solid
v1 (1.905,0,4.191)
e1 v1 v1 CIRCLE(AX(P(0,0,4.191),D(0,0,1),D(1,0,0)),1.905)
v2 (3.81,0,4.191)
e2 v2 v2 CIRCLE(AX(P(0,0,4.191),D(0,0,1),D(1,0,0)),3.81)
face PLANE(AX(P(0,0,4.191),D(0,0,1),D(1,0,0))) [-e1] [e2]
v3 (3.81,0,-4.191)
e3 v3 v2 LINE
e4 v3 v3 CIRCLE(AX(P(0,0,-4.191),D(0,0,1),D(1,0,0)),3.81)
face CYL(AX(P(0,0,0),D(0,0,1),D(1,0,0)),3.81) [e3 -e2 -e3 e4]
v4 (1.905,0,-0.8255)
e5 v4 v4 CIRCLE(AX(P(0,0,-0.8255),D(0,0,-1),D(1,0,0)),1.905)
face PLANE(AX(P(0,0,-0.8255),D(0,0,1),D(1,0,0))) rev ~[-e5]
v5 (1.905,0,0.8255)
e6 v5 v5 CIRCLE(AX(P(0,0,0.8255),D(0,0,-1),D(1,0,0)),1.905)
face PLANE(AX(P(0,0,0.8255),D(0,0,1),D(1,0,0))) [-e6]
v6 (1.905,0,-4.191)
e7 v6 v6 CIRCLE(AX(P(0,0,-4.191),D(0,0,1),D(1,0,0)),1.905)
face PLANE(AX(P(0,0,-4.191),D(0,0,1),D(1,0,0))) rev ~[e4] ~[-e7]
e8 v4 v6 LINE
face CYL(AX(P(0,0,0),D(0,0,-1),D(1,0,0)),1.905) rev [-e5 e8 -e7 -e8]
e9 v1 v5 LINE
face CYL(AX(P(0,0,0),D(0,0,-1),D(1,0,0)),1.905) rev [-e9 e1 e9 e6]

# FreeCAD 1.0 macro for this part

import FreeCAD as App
import Part
import Sketcher

V = App.Vector
Q = App.Units.Quantity

doc = App.newDocument("Part")
params = doc.addObject("Spreadsheet::Sheet", "Params")
for row, (alias, value) in enumerate([
    ("sketch1_diameter", "0.3 in"),
    ("sketch1_diameter2", "0.15 in"),
    ("pad1_length", "0.33 in"),
    ("sketch2_diameter", "0.152 in"),
    ("pad2_length", "0.065 in"),
], start=1):
    params.set(f"A{row}", alias)
    params.set(f"B{row}", "=" + value)
    params.setAlias(f"B{row}", alias)

body = doc.addObject("PartDesign::Body", "Body")

# Sketch on XY plane
sketch1 = body.newObject("Sketcher::SketchObject", "Sketch")
sketch1.AttachmentSupport = (doc.getObject("XY_Plane"), [""])
sketch1.MapMode = "FlatFace"
sketch1.addGeometry(Part.Circle(V(0, 0, 0), V(0, 0, 1), 3.8), False)
sketch1.addGeometry(Part.Circle(V(0, 0, 0), V(0, 0, 1), 1.9), False)
sketch1.addConstraint(Sketcher.Constraint("Coincident", 0, 3, -1, 1))
sketch1.addConstraint(Sketcher.Constraint("Coincident", 1, 3, -1, 1))
sketch1.addConstraint(Sketcher.Constraint("Diameter", 0, Q("0.3 in")))
sketch1.addConstraint(Sketcher.Constraint("Diameter", 1, Q("0.15 in")))
sketch1.setExpression("Constraints[2]", "Params.sketch1_diameter")
sketch1.setExpression("Constraints[3]", "Params.sketch1_diameter2")
pad1 = body.newObject("PartDesign::Pad", "Pad")
pad1.Profile = sketch1
pad1.setExpression("Length", "Params.pad1_length")
pad1.Midplane = True

# Sketch on XY plane
sketch2 = body.newObject("Sketcher::SketchObject", "Sketch001")
sketch2.AttachmentSupport = (doc.getObject("XY_Plane"), [""])
sketch2.MapMode = "FlatFace"
sketch2.addGeometry(Part.Circle(V(0, 0, 0), V(0, 0, 1), 1.9), False)
sketch2.addConstraint(Sketcher.Constraint("Coincident", 0, 3, -1, 1))
sketch2.addConstraint(Sketcher.Constraint("Diameter", 0, Q("0.152 in")))
sketch2.setExpression("Constraints[1]", "Params.sketch2_diameter")
pad2 = body.newObject("PartDesign::Pad", "Pad001")
pad2.Profile = sketch2
pad2.setExpression("Length", "Params.pad2_length")
pad2.Midplane = True

doc.recompute()
